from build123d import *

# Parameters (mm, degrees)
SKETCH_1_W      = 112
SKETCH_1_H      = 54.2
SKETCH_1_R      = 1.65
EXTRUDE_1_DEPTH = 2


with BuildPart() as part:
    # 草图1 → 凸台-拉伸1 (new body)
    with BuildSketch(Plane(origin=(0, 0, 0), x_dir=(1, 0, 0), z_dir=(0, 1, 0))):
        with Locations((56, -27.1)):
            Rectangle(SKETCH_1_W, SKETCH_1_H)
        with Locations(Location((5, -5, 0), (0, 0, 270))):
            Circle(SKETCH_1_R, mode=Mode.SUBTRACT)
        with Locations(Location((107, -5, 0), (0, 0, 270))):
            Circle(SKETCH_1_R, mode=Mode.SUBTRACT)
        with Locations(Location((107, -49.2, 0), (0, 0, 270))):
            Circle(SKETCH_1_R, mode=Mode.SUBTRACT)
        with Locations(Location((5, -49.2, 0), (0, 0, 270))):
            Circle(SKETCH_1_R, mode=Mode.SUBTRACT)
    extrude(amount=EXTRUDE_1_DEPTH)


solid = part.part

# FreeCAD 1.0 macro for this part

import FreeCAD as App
import Part
import Sketcher
Q = App.Units.Quantity


def add_polygon(sketch, points):
    """Adds a closed chain of lines whose ends are joined by coincident constraints."""
    first, n = sketch.GeometryCount, len(points)
    for a, b in zip(points, points[1:] + points[:1]):
        sketch.addGeometry(Part.LineSegment(App.Vector(*a, 0), App.Vector(*b, 0)), False)
    for i in range(n):
        sketch.addConstraint(Sketcher.Constraint("Coincident", first + i, 2, first + (i + 1) % n, 1))

doc = App.newDocument("Part")
body = doc.addObject("PartDesign::Body", "Body")

# Sketch on XZ plane
sketch1 = body.newObject("Sketcher::SketchObject", "Sketch")
sketch1.AttachmentSupport = (doc.getObject("XZ_Plane"), [""])
sketch1.MapMode = "FlatFace"
add_polygon(sketch1, [(0, 0), (0, 54.2), (112, 54.2), (112, 0)])  # lines 0-3
sketch1.addGeometry(Part.Circle(App.Vector(5, 49.2, 0), App.Vector(0, 0, 1), 1.6), False)  # 4
sketch1.addGeometry(Part.Circle(App.Vector(107, 49.2, 0), App.Vector(0, 0, 1), 1.6), False)  # 5
sketch1.addGeometry(Part.Circle(App.Vector(5, 5, 0), App.Vector(0, 0, 1), 1.6), False)  # 6
sketch1.addGeometry(Part.Circle(App.Vector(107, 5, 0), App.Vector(0, 0, 1), 1.6), False)  # 7
sketch1.addConstraint(Sketcher.Constraint("Vertical", 0))
sketch1.addConstraint(Sketcher.Constraint("Horizontal", 1))
sketch1.addConstraint(Sketcher.Constraint("Vertical", 2))
sketch1.addConstraint(Sketcher.Constraint("Horizontal", 3))
sketch1.addConstraint(Sketcher.Constraint("Coincident", 3, 2, -1, 1))
sketch1.addConstraint(Sketcher.Constraint("Equal", 4, 5))
sketch1.addConstraint(Sketcher.Constraint("Equal", 5, 6))
sketch1.addConstraint(Sketcher.Constraint("Equal", 6, 7))
sketch1.addConstraint(Sketcher.Constraint("Horizontal", 4, 3, 5, 3))
sketch1.addConstraint(Sketcher.Constraint("Horizontal", 6, 3, 7, 3))
sketch1.addConstraint(Sketcher.Constraint("Vertical", 4, 3, 6, 3))
sketch1.addConstraint(Sketcher.Constraint("Vertical", 5, 3, 7, 3))
sketch1.addConstraint(Sketcher.Constraint("Diameter", 4, Q("3.3 mm")))
sketch1.addConstraint(Sketcher.Constraint("DistanceX", 1, 1, 1, 2, Q("112 mm")))
sketch1.addConstraint(Sketcher.Constraint("DistanceY", 0, 1, 0, 2, Q("54.2 mm")))
sketch1.addConstraint(Sketcher.Constraint("DistanceX", -1, 1, 4, 3, Q("5 mm")))
sketch1.addConstraint(Sketcher.Constraint("DistanceX", -1, 1, 5, 3, Q("107 mm")))
sketch1.addConstraint(Sketcher.Constraint("DistanceY", -1, 1, 6, 3, Q("5 mm")))
sketch1.addConstraint(Sketcher.Constraint("DistanceY", 4, 3, 0, 2, Q("5 mm")))
pad1 = body.newObject("PartDesign::Pad", "Pad")
pad1.Profile = sketch1
pad1.Length = 2
pad1.Reversed = True

doc.recompute()
